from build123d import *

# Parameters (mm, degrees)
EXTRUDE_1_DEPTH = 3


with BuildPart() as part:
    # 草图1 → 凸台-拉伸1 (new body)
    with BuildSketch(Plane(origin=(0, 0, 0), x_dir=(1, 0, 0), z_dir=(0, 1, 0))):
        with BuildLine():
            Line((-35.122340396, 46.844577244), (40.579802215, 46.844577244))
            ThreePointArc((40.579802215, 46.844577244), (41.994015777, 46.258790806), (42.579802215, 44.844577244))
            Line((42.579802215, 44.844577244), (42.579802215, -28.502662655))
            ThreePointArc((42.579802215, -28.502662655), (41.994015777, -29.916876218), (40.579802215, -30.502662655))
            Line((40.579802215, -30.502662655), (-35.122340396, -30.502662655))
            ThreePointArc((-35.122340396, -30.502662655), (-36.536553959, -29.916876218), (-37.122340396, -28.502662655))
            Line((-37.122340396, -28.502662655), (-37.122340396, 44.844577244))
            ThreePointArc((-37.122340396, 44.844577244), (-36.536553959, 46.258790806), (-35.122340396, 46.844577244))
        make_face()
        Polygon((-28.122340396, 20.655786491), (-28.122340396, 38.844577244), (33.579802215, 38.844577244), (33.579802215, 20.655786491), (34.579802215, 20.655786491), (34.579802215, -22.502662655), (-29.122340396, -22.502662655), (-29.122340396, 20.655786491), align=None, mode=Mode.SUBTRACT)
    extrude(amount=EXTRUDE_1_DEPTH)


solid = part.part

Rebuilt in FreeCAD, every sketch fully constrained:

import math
import FreeCAD as App
import Part
import Sketcher
from FreeCAD import Vector

doc = App.newDocument("Part")
body = doc.addObject("PartDesign::Body", "Body")

sketch1 = body.newObject("Sketcher::SketchObject", "Sketch")
sketch1.AttachmentSupport = (doc.getObject("XZ_Plane"), [""])
sketch1.MapMode = "FlatFace"
sketch1.addGeometry([
    Part.LineSegment(Vector(40.6, -46.8, 0), Vector(-35.1, -46.8, 0)),
    Part.ArcOfCircle(Part.Circle(Vector(-35.1, -44.8, 0), Vector(0, 0, 1), 2), math.radians(180), math.radians(270)),
    Part.LineSegment(Vector(-37.1, -44.8, 0), Vector(-37.1, 28.5, 0)),
    Part.ArcOfCircle(Part.Circle(Vector(-35.1, 28.5, 0), Vector(0, 0, 1), 2), math.radians(90), math.radians(180)),
    Part.LineSegment(Vector(-35.1, 30.5, 0), Vector(40.6, 30.5, 0)),
    Part.ArcOfCircle(Part.Circle(Vector(40.6, 28.5, 0), Vector(0, 0, 1), 2), math.radians(0), math.radians(90)),
    Part.LineSegment(Vector(42.6, 28.5, 0), Vector(42.6, -44.8, 0)),
    Part.ArcOfCircle(Part.Circle(Vector(40.6, -44.8, 0), Vector(0, 0, 1), 2), math.radians(-90), math.radians(0)),
    Part.LineSegment(Vector(-28.1, -20.7, 0), Vector(-28.1, -38.8, 0)),
    Part.LineSegment(Vector(-28.1, -38.8, 0), Vector(33.6, -38.8, 0)),
    Part.LineSegment(Vector(33.6, -38.8, 0), Vector(33.6, -20.7, 0)),
    Part.LineSegment(Vector(33.6, -20.7, 0), Vector(34.6, -20.7, 0)),
    Part.LineSegment(Vector(34.6, -20.7, 0), Vector(34.6, 22.5, 0)),
    Part.LineSegment(Vector(34.6, 22.5, 0), Vector(-29.1, 22.5, 0)),
    Part.LineSegment(Vector(-29.1, 22.5, 0), Vector(-29.1, -20.7, 0)),
    Part.LineSegment(Vector(-29.1, -20.7, 0), Vector(-28.1, -20.7, 0)),
], False)
sketch1.addConstraint([
    Sketcher.Constraint("Tangent", 0, 2, 1, 2),
    Sketcher.Constraint("Tangent", 1, 1, 2, 1),
    Sketcher.Constraint("Tangent", 2, 2, 3, 2),
    Sketcher.Constraint("Tangent", 3, 1, 4, 1),
    Sketcher.Constraint("Tangent", 4, 2, 5, 2),
    Sketcher.Constraint("Tangent", 5, 1, 6, 1),
    Sketcher.Constraint("Tangent", 6, 2, 7, 2),
    Sketcher.Constraint("Tangent", 7, 1, 0, 1),
    Sketcher.Constraint("Coincident", 8, 2, 9, 1),
    Sketcher.Constraint("Coincident", 9, 2, 10, 1),
    Sketcher.Constraint("Coincident", 10, 2, 11, 1),
    Sketcher.Constraint("Coincident", 11, 2, 12, 1),
    Sketcher.Constraint("Coincident", 12, 2, 13, 1),
    Sketcher.Constraint("Coincident", 13, 2, 14, 1),
    Sketcher.Constraint("Coincident", 14, 2, 15, 1),
    Sketcher.Constraint("Coincident", 15, 2, 8, 1),
    Sketcher.Constraint("Horizontal", 0),
    Sketcher.Constraint("Vertical", 2),
    Sketcher.Constraint("Horizontal", 4),
    Sketcher.Constraint("Vertical", 6),
    Sketcher.Constraint("Vertical", 8),
    Sketcher.Constraint("Horizontal", 9),
    Sketcher.Constraint("Vertical", 10),
    Sketcher.Constraint("Horizontal", 11),
    Sketcher.Constraint("Vertical", 12),
    Sketcher.Constraint("Horizontal", 13),
    Sketcher.Constraint("Vertical", 14),
    Sketcher.Constraint("Horizontal", 15),
    Sketcher.Constraint("Equal", 1, 3),
    Sketcher.Constraint("Equal", 3, 5),
    Sketcher.Constraint("Equal", 5, 7),
    Sketcher.Constraint("Horizontal", 11, 2, 14, 2),
    Sketcher.Constraint("Equal", 11, 15),
    Sketcher.Constraint("Radius", 1, 2.0),
    Sketcher.Constraint("DistanceX", 11, 1, 11, 2, 1.0),
    Sketcher.Constraint("DistanceX", 1, 3, 8, 2, 7.0),
    Sketcher.Constraint("DistanceY", 1, 3, 8, 2, 6.0),
    Sketcher.Constraint("DistanceX", 9, 2, 7, 3, 7.0),
    Sketcher.Constraint("DistanceY", 12, 2, 5, 3, 6.0),
    Sketcher.Constraint("DistanceY", 2, 1, 2, 2, 73.34724),
    Sketcher.Constraint("DistanceY", 8, 2, 8, 1, 18.188791),
    Sketcher.Constraint("DistanceX", 0, 2, 0, 1, 75.702143),
    Sketcher.Constraint("DistanceX", 1, 3, -1, 1, 35.12234),
    Sketcher.Constraint("DistanceY", 1, 3, -1, 1, 44.844577),
])
pad1 = body.newObject("PartDesign::Pad", "Pad")
pad1.Profile = sketch1
pad1.Length = 3
pad1.Reversed = True

doc.recompute()
